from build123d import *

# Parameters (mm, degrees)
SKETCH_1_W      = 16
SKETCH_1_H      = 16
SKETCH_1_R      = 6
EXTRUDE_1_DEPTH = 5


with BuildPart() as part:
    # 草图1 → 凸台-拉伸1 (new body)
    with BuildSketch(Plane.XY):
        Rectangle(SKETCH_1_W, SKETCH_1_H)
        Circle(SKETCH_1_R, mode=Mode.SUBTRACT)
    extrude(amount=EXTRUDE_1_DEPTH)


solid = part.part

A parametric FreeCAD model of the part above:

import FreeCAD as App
import Part
import Sketcher

V = App.Vector
Q = App.Units.Quantity

doc = App.newDocument("Part")
body = doc.addObject("PartDesign::Body", "Body")

# Sketch on XY plane
sketch1 = body.newObject("Sketcher::SketchObject", "Sketch")
sketch1.AttachmentSupport = (doc.getObject("XY_Plane"), [""])
sketch1.MapMode = "FlatFace"
sketch1.addGeometry(Part.LineSegment(V(-8, 8, 0), V(-8, -8, 0)), False)
sketch1.addGeometry(Part.LineSegment(V(-8, -8, 0), V(8, -8, 0)), False)
sketch1.addGeometry(Part.LineSegment(V(8, -8, 0), V(8, 8, 0)), False)
sketch1.addGeometry(Part.LineSegment(V(8, 8, 0), V(-8, 8, 0)), False)
sketch1.addGeometry(Part.Circle(V(0, 0, 0), V(0, 0, 1), 6), False)
sketch1.addConstraint(Sketcher.Constraint("Coincident", 0, 2, 1, 1))
sketch1.addConstraint(Sketcher.Constraint("Coincident", 1, 2, 2, 1))
sketch1.addConstraint(Sketcher.Constraint("Coincident", 2, 2, 3, 1))
sketch1.addConstraint(Sketcher.Constraint("Coincident", 3, 2, 0, 1))
sketch1.addConstraint(Sketcher.Constraint("Vertical", 0))
sketch1.addConstraint(Sketcher.Constraint("Horizontal", 1))
sketch1.addConstraint(Sketcher.Constraint("Vertical", 2))
sketch1.addConstraint(Sketcher.Constraint("Horizontal", 3))
sketch1.addConstraint(Sketcher.Constraint("Coincident", 4, 3, -1, 1))
sketch1.addConstraint(Sketcher.Constraint("Symmetric", 0, 2, 2, 2, -1, 1))
sketch1.addConstraint(Sketcher.Constraint("Equal", 3, 0))
sketch1.addConstraint(Sketcher.Constraint("Diameter", 4, Q("12 mm")))
sketch1.addConstraint(Sketcher.Constraint("DistanceX", 1, 1, 1, 2, Q("16 mm")))
pad1 = body.newObject("PartDesign::Pad", "Pad")
pad1.Profile = sketch1
pad1.Length = 5

doc.recompute()
